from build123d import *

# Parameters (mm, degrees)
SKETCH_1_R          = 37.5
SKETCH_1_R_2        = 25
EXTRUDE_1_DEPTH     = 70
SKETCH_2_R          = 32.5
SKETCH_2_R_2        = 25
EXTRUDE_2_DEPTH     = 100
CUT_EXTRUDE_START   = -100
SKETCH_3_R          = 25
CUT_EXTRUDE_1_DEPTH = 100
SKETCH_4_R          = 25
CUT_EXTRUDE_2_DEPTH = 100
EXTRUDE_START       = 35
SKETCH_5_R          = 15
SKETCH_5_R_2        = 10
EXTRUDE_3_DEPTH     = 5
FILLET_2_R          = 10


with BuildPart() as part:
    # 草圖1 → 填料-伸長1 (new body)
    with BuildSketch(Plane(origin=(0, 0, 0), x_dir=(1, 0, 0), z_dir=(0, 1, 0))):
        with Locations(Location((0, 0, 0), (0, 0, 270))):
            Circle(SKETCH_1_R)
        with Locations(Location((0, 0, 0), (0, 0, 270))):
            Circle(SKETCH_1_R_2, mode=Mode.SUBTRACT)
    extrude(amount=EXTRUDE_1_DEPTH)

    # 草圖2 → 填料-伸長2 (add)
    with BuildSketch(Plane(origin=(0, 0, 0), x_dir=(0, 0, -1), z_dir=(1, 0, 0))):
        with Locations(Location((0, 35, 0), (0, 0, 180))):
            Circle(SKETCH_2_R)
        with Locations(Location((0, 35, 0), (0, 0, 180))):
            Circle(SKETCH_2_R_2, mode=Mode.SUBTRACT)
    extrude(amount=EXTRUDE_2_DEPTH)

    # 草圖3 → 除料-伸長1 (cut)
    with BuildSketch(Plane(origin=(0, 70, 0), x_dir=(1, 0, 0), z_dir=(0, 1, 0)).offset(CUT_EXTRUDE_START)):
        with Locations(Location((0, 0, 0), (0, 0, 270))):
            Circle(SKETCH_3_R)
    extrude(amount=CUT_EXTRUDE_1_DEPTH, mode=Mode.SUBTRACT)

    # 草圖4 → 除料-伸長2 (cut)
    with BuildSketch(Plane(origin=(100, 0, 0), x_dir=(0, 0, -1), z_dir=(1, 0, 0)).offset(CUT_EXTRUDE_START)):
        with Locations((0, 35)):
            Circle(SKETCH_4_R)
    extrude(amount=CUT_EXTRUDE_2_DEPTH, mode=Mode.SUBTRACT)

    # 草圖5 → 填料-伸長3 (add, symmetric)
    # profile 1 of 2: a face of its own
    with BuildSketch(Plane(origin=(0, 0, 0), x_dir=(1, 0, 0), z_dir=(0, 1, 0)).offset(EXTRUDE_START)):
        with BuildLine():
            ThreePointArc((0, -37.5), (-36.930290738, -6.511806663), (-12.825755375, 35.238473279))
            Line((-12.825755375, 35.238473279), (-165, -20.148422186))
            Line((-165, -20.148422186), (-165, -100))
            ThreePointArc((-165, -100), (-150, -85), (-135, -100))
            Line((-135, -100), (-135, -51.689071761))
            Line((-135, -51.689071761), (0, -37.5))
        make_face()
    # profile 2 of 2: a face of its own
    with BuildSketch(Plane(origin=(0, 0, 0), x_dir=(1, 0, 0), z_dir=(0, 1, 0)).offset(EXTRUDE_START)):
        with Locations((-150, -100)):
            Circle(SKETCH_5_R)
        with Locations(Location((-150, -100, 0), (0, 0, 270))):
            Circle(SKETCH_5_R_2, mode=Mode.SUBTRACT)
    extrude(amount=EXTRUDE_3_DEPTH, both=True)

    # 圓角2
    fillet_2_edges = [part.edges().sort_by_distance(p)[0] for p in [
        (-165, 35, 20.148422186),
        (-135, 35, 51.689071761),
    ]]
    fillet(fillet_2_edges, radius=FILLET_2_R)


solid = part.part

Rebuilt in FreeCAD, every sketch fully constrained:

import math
import FreeCAD as App
import Part
import Sketcher
Q = App.Units.Quantity


def edges_at(feature, points):
    """Names of the edges that pass closest to the given points."""
    edges = feature.Shape.Edges
    near = lambda p: min(range(len(edges)), key=lambda i: edges[i].distToShape(Part.Vertex(*p))[0])
    return sorted({f"Edge{near(p) + 1}" for p in points})

doc = App.newDocument("Part")
body = doc.addObject("PartDesign::Body", "Body")

sketch1 = body.newObject("Sketcher::SketchObject", "Sketch")
sketch1.AttachmentSupport = (doc.getObject("XZ_Plane"), [""])
sketch1.MapMode = "FlatFace"
sketch1.addGeometry([
    Part.Circle(App.Vector(0, 0, 0), App.Vector(0, 0, 1), 37.5),
    Part.Circle(App.Vector(0, 0, 0), App.Vector(0, 0, 1), 25),
], False)
sketch1.addConstraint([
    Sketcher.Constraint("Coincident", 0, 3, -1, 1),
    Sketcher.Constraint("Coincident", 1, 3, -1, 1),
    Sketcher.Constraint("Diameter", 0, Q("75 mm")),
    Sketcher.Constraint("Diameter", 1, Q("50 mm")),
])
pad1 = body.newObject("PartDesign::Pad", "Pad")
pad1.Profile = sketch1
pad1.Length = 70
pad1.Reversed = True

sketch2 = body.newObject("Sketcher::SketchObject", "Sketch001")
sketch2.AttachmentSupport = (doc.getObject("YZ_Plane"), [""])
sketch2.MapMode = "FlatFace"
sketch2.addGeometry([
    Part.Circle(App.Vector(35, 0, 0), App.Vector(0, 0, 1), 32.5),
    Part.Circle(App.Vector(35, 0, 0), App.Vector(0, 0, 1), 25),
], False)
sketch2.addConstraint([
    Sketcher.Constraint("Coincident", 1, 3, 0, 3),
    Sketcher.Constraint("PointOnObject", 0, 3, -1),
    Sketcher.Constraint("Diameter", 0, Q("65 mm")),
    Sketcher.Constraint("Diameter", 1, Q("50 mm")),
    Sketcher.Constraint("DistanceX", -1, 1, 0, 3, Q("35 mm")),
])
pad2 = body.newObject("PartDesign::Pad", "Pad001")
pad2.Profile = sketch2
pad2.Length = 100

sketch3 = body.newObject("Sketcher::SketchObject", "Sketch002")
sketch3.AttachmentSupport = (doc.getObject("XZ_Plane"), [""])
sketch3.MapMode = "FlatFace"
sketch3.AttachmentOffset = App.Placement(App.Vector(0, 0, 30), App.Rotation())
sketch3.addGeometry(Part.Circle(App.Vector(0, 0, 0), App.Vector(0, 0, 1), 25), False)
sketch3.addConstraint([
    Sketcher.Constraint("Coincident", 0, 3, -1, 1),
    Sketcher.Constraint("Diameter", 0, Q("50 mm")),
])
pocket1 = body.newObject("PartDesign::Pocket", "Pocket")
pocket1.Profile = sketch3
pocket1.Length = 100

sketch4 = body.newObject("Sketcher::SketchObject", "Sketch003")
sketch4.AttachmentSupport = (doc.getObject("YZ_Plane"), [""])
sketch4.MapMode = "FlatFace"
sketch4.addGeometry(Part.Circle(App.Vector(35, 0, 0), App.Vector(0, 0, 1), 25), False)
sketch4.addConstraint([
    Sketcher.Constraint("PointOnObject", 0, 3, -1),
    Sketcher.Constraint("Diameter", 0, Q("50 mm")),
    Sketcher.Constraint("DistanceX", -1, 1, 0, 3, Q("35 mm")),
])
pocket2 = body.newObject("PartDesign::Pocket", "Pocket001")
pocket2.Profile = sketch4
pocket2.Length = 100
pocket2.Reversed = True

sketch5 = body.newObject("Sketcher::SketchObject", "Sketch004")
sketch5.AttachmentSupport = (doc.getObject("XZ_Plane"), [""])
sketch5.MapMode = "FlatFace"
sketch5.AttachmentOffset = App.Placement(App.Vector(0, 0, -35), App.Rotation())
sketch5.addGeometry([
    Part.ArcOfCircle(Part.Circle(App.Vector(0, 0, 0), App.Vector(0, 0, 1), 37.5), math.radians(90), math.radians(250)),
    Part.LineSegment(App.Vector(-12.825755, -35.238473, 0), App.Vector(-165, 20.148422, 0)),
    Part.LineSegment(App.Vector(-165, 20.148422, 0), App.Vector(-165, 100, 0)),
    Part.ArcOfCircle(Part.Circle(App.Vector(-150, 100, 0), App.Vector(0, 0, 1), 15), math.radians(0), math.radians(180)),
    Part.LineSegment(App.Vector(-135, 100, 0), App.Vector(-135, 51.689072, 0)),
    Part.LineSegment(App.Vector(-135, 51.689072, 0), App.Vector(0, 37.5, 0)),
    Part.Circle(App.Vector(-150, 100, 0), App.Vector(0, 0, 1), 10),
], False)
sketch5.addConstraint([
    Sketcher.Constraint("Tangent", 0, 2, 1, 1),
    Sketcher.Constraint("Coincident", 1, 2, 2, 1),
    Sketcher.Constraint("Tangent", 2, 2, 3, 2),
    Sketcher.Constraint("Tangent", 3, 1, 4, 1),
    Sketcher.Constraint("Coincident", 4, 2, 5, 1),
    Sketcher.Constraint("Coincident", 5, 2, 0, 1),
    Sketcher.Constraint("Vertical", 2),
    Sketcher.Constraint("Vertical", 4),
    Sketcher.Constraint("Coincident", 0, 3, -1, 1),
    Sketcher.Constraint("Coincident", 6, 3, 3, 3),
    Sketcher.Constraint("PointOnObject", 5, 2, -2),
    Sketcher.Constraint("Diameter", 6, Q("20 mm")),
    Sketcher.Constraint("Radius", 3, Q("15 mm")),
    Sketcher.Constraint("Radius", 0, Q("37.5 mm")),
    Sketcher.Constraint("Angle", 1, Q("160 deg")),
    Sketcher.Constraint("Angle", 5, Q("-6 deg")),
    Sketcher.Constraint("DistanceX", 3, 3, -1, 1, Q("150 mm")),
    Sketcher.Constraint("DistanceY", -1, 1, 3, 3, Q("100 mm")),
])
pad3 = body.newObject("PartDesign::Pad", "Pad002")
pad3.Profile = sketch5
pad3.Length = 10
pad3.Midplane = True
doc.recompute()

fillet = body.newObject("PartDesign::Fillet", "Fillet")
fillet.Base = (pad3, edges_at(pad3, [(-165, 35, 20.148), (-135, 35, 51.689)]))
fillet.Radius = 10

doc.recompute()
